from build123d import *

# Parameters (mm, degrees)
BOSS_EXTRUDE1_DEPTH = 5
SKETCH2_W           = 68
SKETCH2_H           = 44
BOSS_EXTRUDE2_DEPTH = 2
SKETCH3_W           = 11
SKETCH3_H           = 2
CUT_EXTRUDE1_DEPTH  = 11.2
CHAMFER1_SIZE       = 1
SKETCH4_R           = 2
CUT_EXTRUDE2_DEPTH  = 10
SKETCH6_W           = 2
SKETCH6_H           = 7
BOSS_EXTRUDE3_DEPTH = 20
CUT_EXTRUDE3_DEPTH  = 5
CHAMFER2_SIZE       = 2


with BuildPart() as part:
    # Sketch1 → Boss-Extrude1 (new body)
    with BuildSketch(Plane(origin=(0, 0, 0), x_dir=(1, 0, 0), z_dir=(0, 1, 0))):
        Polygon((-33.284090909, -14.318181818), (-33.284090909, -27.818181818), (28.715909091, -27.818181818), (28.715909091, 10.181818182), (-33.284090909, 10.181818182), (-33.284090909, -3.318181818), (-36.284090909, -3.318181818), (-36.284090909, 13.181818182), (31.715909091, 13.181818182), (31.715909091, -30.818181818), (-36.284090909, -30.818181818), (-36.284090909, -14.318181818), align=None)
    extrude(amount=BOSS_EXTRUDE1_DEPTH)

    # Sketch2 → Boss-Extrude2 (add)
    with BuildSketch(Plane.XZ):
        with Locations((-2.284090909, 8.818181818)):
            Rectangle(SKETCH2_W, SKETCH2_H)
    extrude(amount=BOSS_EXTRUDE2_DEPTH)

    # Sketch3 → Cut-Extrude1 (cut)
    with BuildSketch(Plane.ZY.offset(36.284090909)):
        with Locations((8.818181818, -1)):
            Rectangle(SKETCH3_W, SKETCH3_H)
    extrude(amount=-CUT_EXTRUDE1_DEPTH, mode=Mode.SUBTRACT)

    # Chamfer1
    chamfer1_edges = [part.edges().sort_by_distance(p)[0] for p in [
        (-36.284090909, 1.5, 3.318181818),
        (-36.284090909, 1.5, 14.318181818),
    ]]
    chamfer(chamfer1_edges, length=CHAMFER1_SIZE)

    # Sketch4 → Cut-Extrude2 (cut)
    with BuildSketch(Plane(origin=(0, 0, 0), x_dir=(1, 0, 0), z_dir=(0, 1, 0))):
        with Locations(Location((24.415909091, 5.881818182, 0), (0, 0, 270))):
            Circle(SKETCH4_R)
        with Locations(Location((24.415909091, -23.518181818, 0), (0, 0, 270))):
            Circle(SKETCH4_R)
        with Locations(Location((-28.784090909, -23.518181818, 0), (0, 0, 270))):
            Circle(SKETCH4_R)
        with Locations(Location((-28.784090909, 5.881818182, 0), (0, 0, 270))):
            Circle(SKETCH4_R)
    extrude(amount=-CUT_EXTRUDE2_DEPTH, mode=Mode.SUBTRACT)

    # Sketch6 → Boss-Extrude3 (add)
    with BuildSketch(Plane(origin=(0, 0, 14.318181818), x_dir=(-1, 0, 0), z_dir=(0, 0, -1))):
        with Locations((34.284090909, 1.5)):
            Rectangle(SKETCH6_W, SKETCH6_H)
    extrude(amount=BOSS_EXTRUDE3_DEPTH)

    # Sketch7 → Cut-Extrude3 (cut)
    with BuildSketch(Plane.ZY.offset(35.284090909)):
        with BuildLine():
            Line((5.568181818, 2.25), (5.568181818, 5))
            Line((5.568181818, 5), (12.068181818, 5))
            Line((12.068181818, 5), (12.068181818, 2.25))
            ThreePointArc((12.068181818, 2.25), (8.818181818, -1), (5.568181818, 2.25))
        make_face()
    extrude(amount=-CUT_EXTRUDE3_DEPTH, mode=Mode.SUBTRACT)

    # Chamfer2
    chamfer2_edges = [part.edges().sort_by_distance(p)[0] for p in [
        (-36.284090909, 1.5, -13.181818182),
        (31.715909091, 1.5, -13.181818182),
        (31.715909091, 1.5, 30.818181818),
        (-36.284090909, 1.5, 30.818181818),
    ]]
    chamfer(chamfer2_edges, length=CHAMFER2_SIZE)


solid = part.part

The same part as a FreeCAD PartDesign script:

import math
import FreeCAD as App
import Part
import Sketcher
from FreeCAD import Vector
Q = App.Units.Quantity


def edges_at(feature, points):
    """Names of the edges that pass closest to the given points."""
    edges = feature.Shape.Edges
    near = lambda p: min(range(len(edges)), key=lambda i: edges[i].distToShape(Part.Vertex(*p))[0])
    return sorted({f"Edge{near(p) + 1}" for p in points})


def add_polygon(sketch, points):
    """Adds a closed chain of lines whose ends are joined by coincident constraints."""
    first, n = sketch.GeometryCount, len(points)
    for a, b in zip(points, points[1:] + points[:1]):
        sketch.addGeometry(Part.LineSegment(App.Vector(*a, 0), App.Vector(*b, 0)), False)
    for i in range(n):
        sketch.addConstraint(Sketcher.Constraint("Coincident", first + i, 2, first + (i + 1) % n, 1))

doc = App.newDocument("Part")
body = doc.addObject("PartDesign::Body", "Body")

# Sketch on XZ plane
sketch1 = body.newObject("Sketcher::SketchObject", "Sketch")
sketch1.AttachmentSupport = (doc.getObject("XZ_Plane"), [""])
sketch1.MapMode = "FlatFace"
add_polygon(sketch1, [(-33.3, 27.8), (-33.3, 14.3), (-36.3, 14.3), (-36.3, 30.8), (31.7, 30.8), (31.7, -13.2), (-36.3, -13.2), (-36.3, 3.3), (-33.3, 3.3), (-33.3, -10.2), (28.7, -10.2), (28.7, 27.8)])  # lines 0-11
sketch1.addConstraint([
    Sketcher.Constraint("Vertical", 0),
    Sketcher.Constraint("Horizontal", 1),
    Sketcher.Constraint("Vertical", 2),
    Sketcher.Constraint("Horizontal", 3),
    Sketcher.Constraint("Vertical", 4),
    Sketcher.Constraint("Horizontal", 5),
    Sketcher.Constraint("Vertical", 6),
    Sketcher.Constraint("Horizontal", 7),
    Sketcher.Constraint("Vertical", 8),
    Sketcher.Constraint("Horizontal", 9),
    Sketcher.Constraint("Vertical", 10),
    Sketcher.Constraint("Horizontal", 11),
    Sketcher.Constraint("Vertical", 2, 2, 5, 2),
    Sketcher.Constraint("Vertical", 0, 2, 7, 2),
    Sketcher.Constraint("Equal", 2, 6),
    Sketcher.Constraint("Equal", 0, 8),
    Sketcher.Constraint("DistanceX", 1, 2, 1, 1, Q("3 mm")),
    Sketcher.Constraint("DistanceX", 3, 1, 3, 2, Q("68 mm")),
    Sketcher.Constraint("DistanceX", 9, 1, 9, 2, Q("62 mm")),
    Sketcher.Constraint("DistanceY", 4, 2, 4, 1, Q("44 mm")),
    Sketcher.Constraint("DistanceY", 10, 1, 10, 2, Q("38 mm")),
    Sketcher.Constraint("DistanceY", 0, 2, 0, 1, Q("13.5 mm")),
    Sketcher.Constraint("DistanceX", 0, 2, -1, 1, Q("33.284091 mm")),
    Sketcher.Constraint("DistanceY", -1, 1, 0, 2, Q("14.318182 mm")),
])
pad1 = body.newObject("PartDesign::Pad", "Pad")
pad1.Profile = sketch1
pad1.Length = 5
pad1.Reversed = True

# Sketch on XZ plane
sketch2 = body.newObject("Sketcher::SketchObject", "Sketch001")
sketch2.AttachmentSupport = (doc.getObject("XZ_Plane"), [""])
sketch2.MapMode = "FlatFace"
add_polygon(sketch2, [(-36, 31), (-36, -13), (32, -13), (32, 31)])  # lines 0-3
sketch2.addConstraint([
    Sketcher.Constraint("Vertical", 0),
    Sketcher.Constraint("Horizontal", 1),
    Sketcher.Constraint("Vertical", 2),
    Sketcher.Constraint("Horizontal", 3),
    Sketcher.Constraint("DistanceX", 1, 1, 1, 2, Q("68 mm")),
    Sketcher.Constraint("DistanceY", 0, 2, 0, 1, Q("44 mm")),
    Sketcher.Constraint("DistanceX", 0, 2, -1, 1, Q("36.284091 mm")),
    Sketcher.Constraint("DistanceY", 0, 2, -1, 1, Q("13.181818 mm")),
])
pad2 = body.newObject("PartDesign::Pad", "Pad001")
pad2.Profile = sketch2
pad2.Length = 2

# Sketch on YZ plane
sketch3 = body.newObject("Sketcher::SketchObject", "Sketch002")
sketch3.AttachmentSupport = (doc.getObject("YZ_Plane"), [""])
sketch3.MapMode = "FlatFace"
sketch3.AttachmentOffset = App.Placement(Vector(0, 0, -36.284091), App.Rotation())
add_polygon(sketch3, [(0, 3.3), (-2, 3.3), (-2, 14.3), (0, 14.3)])  # lines 0-3
sketch3.addConstraint([
    Sketcher.Constraint("Horizontal", 0),
    Sketcher.Constraint("Vertical", 1),
    Sketcher.Constraint("Horizontal", 2),
    Sketcher.Constraint("Vertical", 3),
    Sketcher.Constraint("PointOnObject", 2, 2, -2),
    Sketcher.Constraint("DistanceX", 0, 2, 0, 1, Q("2 mm")),
    Sketcher.Constraint("DistanceY", 1, 1, 1, 2, Q("11 mm")),
    Sketcher.Constraint("DistanceY", -1, 1, 0, 2, Q("3.318182 mm")),
])
pocket1 = body.newObject("PartDesign::Pocket", "Pocket")
pocket1.Profile = sketch3
pocket1.Length = 11.2
pocket1.Reversed = True
doc.recompute()

chamfer = body.newObject("PartDesign::Chamfer", "Chamfer")
chamfer.Base = (pocket1, edges_at(pocket1, [(-36.284, 1.5, 3.318), (-36.284, 1.5, 14.318)]))
chamfer.Size = 1

# Sketch on XZ plane
sketch4 = body.newObject("Sketcher::SketchObject", "Sketch003")
sketch4.AttachmentSupport = (doc.getObject("XZ_Plane"), [""])
sketch4.MapMode = "FlatFace"
sketch4.addGeometry([
    Part.Circle(Vector(24.4, -5.9, 0), Vector(0, 0, 1), 2),
    Part.Circle(Vector(24.4, 23.5, 0), Vector(0, 0, 1), 2),
    Part.Circle(Vector(-28.8, 23.5, 0), Vector(0, 0, 1), 2),
    Part.Circle(Vector(-28.8, -5.9, 0), Vector(0, 0, 1), 2),
], False)
sketch4.addConstraint([
    Sketcher.Constraint("Equal", 0, 1),
    Sketcher.Constraint("Equal", 1, 2),
    Sketcher.Constraint("Equal", 2, 3),
    Sketcher.Constraint("Horizontal", 1, 3, 2, 3),
    Sketcher.Constraint("Horizontal", 0, 3, 3, 3),
    Sketcher.Constraint("Vertical", 0, 3, 1, 3),
    Sketcher.Constraint("Vertical", 2, 3, 3, 3),
    Sketcher.Constraint("Diameter", 0, Q("4 mm")),
    Sketcher.Constraint("DistanceY", 0, 3, 1, 3, Q("29.4 mm")),
    Sketcher.Constraint("DistanceX", 2, 3, 1, 3, Q("53.2 mm")),
    Sketcher.Constraint("DistanceX", -1, 1, 0, 3, Q("24.415909 mm")),
    Sketcher.Constraint("DistanceY", 0, 3, -1, 1, Q("5.881818 mm")),
])
pocket2 = body.newObject("PartDesign::Pocket", "Pocket001")
pocket2.Profile = sketch4
pocket2.Length = 10
pocket2.Reversed = True

# Sketch on XY plane
sketch5 = body.newObject("Sketcher::SketchObject", "Sketch004")
sketch5.AttachmentSupport = (doc.getObject("XY_Plane"), [""])
sketch5.MapMode = "FlatFace"
sketch5.AttachmentOffset = App.Placement(Vector(0, 0, 14.318182), App.Rotation())
add_polygon(sketch5, [(-33.3, 5), (-33.3, -2), (-35.3, -2), (-35.3, 5)])  # lines 0-3
sketch5.addConstraint([
    Sketcher.Constraint("Vertical", 0),
    Sketcher.Constraint("Horizontal", 1),
    Sketcher.Constraint("Vertical", 2),
    Sketcher.Constraint("Horizontal", 3),
    Sketcher.Constraint("DistanceX", 1, 2, 1, 1, Q("2 mm")),
    Sketcher.Constraint("DistanceY", 0, 2, 0, 1, Q("7 mm")),
    Sketcher.Constraint("DistanceY", 0, 2, -1, 1, Q("2 mm")),
    Sketcher.Constraint("DistanceX", 0, 2, -1, 1, Q("33.284091 mm")),
])
pad3 = body.newObject("PartDesign::Pad", "Pad002")
pad3.Profile = sketch5
pad3.Length = 20
pad3.Reversed = True

# Sketch on YZ plane
sketch6 = body.newObject("Sketcher::SketchObject", "Sketch005")
sketch6.AttachmentSupport = (doc.getObject("YZ_Plane"), [""])
sketch6.MapMode = "FlatFace"
sketch6.AttachmentOffset = App.Placement(Vector(0, 0, -35.284091), App.Rotation())
sketch6.addGeometry([
    Part.LineSegment(Vector(5, 5.6, 0), Vector(2.2, 5.6, 0)),
    Part.ArcOfCircle(Part.Circle(Vector(2.2, 8.8, 0), Vector(0, 0, 1), 3.2), math.radians(90), math.radians(270)),
    Part.LineSegment(Vector(2.2, 12.1, 0), Vector(5, 12.1, 0)),
    Part.LineSegment(Vector(5, 12.1, 0), Vector(5, 5.6, 0)),
], False)
sketch6.addConstraint([
    Sketcher.Constraint("Tangent", 0, 2, 1, 2),
    Sketcher.Constraint("Tangent", 1, 1, 2, 1),
    Sketcher.Constraint("Coincident", 2, 2, 3, 1),
    Sketcher.Constraint("Coincident", 3, 2, 0, 1),
    Sketcher.Constraint("Horizontal", 0),
    Sketcher.Constraint("Horizontal", 2),
    Sketcher.Constraint("Vertical", 3),
    Sketcher.Constraint("Radius", 1, Q("3.25 mm")),
    Sketcher.Constraint("DistanceX", -1, 1, 2, 2, Q("5 mm")),
    Sketcher.Constraint("DistanceX", 0, 2, 0, 1, Q("2.75 mm")),
    Sketcher.Constraint("DistanceY", -1, 1, 1, 3, Q("8.818182 mm")),
])
pocket3 = body.newObject("PartDesign::Pocket", "Pocket002")
pocket3.Profile = sketch6
pocket3.Length = 5
pocket3.Reversed = True
doc.recompute()

chamfer2 = body.newObject("PartDesign::Chamfer", "Chamfer001")
chamfer2.Base = (pocket3, edges_at(pocket3, [
    (-36.284, 1.5, -13.182),
    (31.716, 1.5, -13.182),
    (31.716, 1.5, 30.818),
    (-36.284, 1.5, 30.818),
]))
chamfer2.Size = 2

doc.recompute()
